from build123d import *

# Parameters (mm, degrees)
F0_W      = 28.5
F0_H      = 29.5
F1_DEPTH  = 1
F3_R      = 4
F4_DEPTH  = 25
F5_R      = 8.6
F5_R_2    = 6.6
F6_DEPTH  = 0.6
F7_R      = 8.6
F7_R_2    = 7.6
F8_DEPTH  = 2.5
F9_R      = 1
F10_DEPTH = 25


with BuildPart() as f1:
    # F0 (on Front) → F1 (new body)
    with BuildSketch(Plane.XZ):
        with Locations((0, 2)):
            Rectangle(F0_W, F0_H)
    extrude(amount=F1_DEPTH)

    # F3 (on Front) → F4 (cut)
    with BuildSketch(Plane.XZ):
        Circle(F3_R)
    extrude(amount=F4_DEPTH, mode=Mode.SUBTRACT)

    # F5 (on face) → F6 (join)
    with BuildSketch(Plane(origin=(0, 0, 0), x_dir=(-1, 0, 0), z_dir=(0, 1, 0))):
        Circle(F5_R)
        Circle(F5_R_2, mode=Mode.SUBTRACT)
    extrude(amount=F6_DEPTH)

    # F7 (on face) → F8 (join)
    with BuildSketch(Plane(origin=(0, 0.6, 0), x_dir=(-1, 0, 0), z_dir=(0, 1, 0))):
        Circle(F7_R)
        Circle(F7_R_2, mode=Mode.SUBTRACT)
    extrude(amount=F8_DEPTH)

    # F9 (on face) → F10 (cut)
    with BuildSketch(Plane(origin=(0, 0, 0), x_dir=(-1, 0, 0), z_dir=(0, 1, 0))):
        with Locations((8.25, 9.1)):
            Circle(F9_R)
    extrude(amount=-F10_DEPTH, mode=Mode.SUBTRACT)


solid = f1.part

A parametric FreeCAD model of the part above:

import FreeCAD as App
import Part
import Sketcher

V = App.Vector
Q = App.Units.Quantity

doc = App.newDocument("Part")
body = doc.addObject("PartDesign::Body", "Body")

# Sketch on XZ plane
sketch1 = body.newObject("Sketcher::SketchObject", "Sketch")
sketch1.AttachmentSupport = (doc.getObject("XZ_Plane"), [""])
sketch1.MapMode = "FlatFace"
sketch1.addGeometry([
    Part.LineSegment(V(-14, 17, 0), V(-14, -13, 0)),
    Part.LineSegment(V(-14, -13, 0), V(14, -13, 0)),
    Part.LineSegment(V(14, -13, 0), V(14, 17, 0)),
    Part.LineSegment(V(14, 17, 0), V(-14, 17, 0)),
], False)
sketch1.addConstraint([
    Sketcher.Constraint("Coincident", 0, 2, 1, 1),
    Sketcher.Constraint("Coincident", 1, 2, 2, 1),
    Sketcher.Constraint("Coincident", 2, 2, 3, 1),
    Sketcher.Constraint("Coincident", 3, 2, 0, 1),
    Sketcher.Constraint("Vertical", 0),
    Sketcher.Constraint("Horizontal", 1),
    Sketcher.Constraint("Vertical", 2),
    Sketcher.Constraint("Horizontal", 3),
    Sketcher.Constraint("DistanceX", 1, 1, 1, 2, Q("28.5 mm")),
    Sketcher.Constraint("DistanceY", 0, 2, 0, 1, Q("29.5 mm")),
    Sketcher.Constraint("DistanceX", 0, 2, -1, 1, Q("14.25 mm")),
    Sketcher.Constraint("DistanceY", 0, 2, -1, 1, Q("12.75 mm")),
])
pad1 = body.newObject("PartDesign::Pad", "Pad")
pad1.Profile = sketch1
pad1.Length = 1

# Sketch on XZ plane
sketch2 = body.newObject("Sketcher::SketchObject", "Sketch001")
sketch2.AttachmentSupport = (doc.getObject("XZ_Plane"), [""])
sketch2.MapMode = "FlatFace"
sketch2.addGeometry(Part.Circle(V(0, 0, 0), V(0, 0, 1), 4), False)
sketch2.addConstraint([
    Sketcher.Constraint("Coincident", 0, 3, -1, 1),
    Sketcher.Constraint("Diameter", 0, Q("8 mm")),
])
pocket1 = body.newObject("PartDesign::Pocket", "Pocket")
pocket1.Profile = sketch2
pocket1.Length = 25
pocket1.Reversed = True

# Sketch on XZ plane
sketch3 = body.newObject("Sketcher::SketchObject", "Sketch002")
sketch3.AttachmentSupport = (doc.getObject("XZ_Plane"), [""])
sketch3.MapMode = "FlatFace"
sketch3.addGeometry([
    Part.Circle(V(0, 0, 0), V(0, 0, 1), 9),
    Part.Circle(V(0, 0, 0), V(0, 0, 1), 7),
], False)
sketch3.addConstraint([
    Sketcher.Constraint("Coincident", 0, 3, -1, 1),
    Sketcher.Constraint("Coincident", 1, 3, -1, 1),
    Sketcher.Constraint("Diameter", 0, Q("17.2 mm")),
    Sketcher.Constraint("Diameter", 1, Q("13.2 mm")),
])
pad2 = body.newObject("PartDesign::Pad", "Pad001")
pad2.Profile = sketch3
pad2.Length = 0.6
pad2.Reversed = True

# Sketch on XZ plane
sketch4 = body.newObject("Sketcher::SketchObject", "Sketch003")
sketch4.AttachmentSupport = (doc.getObject("XZ_Plane"), [""])
sketch4.MapMode = "FlatFace"
sketch4.AttachmentOffset = App.Placement(V(0, 0, -0.6), App.Rotation())
sketch4.addGeometry([
    Part.Circle(V(0, 0, 0), V(0, 0, 1), 9),
    Part.Circle(V(0, 0, 0), V(0, 0, 1), 8),
], False)
sketch4.addConstraint([
    Sketcher.Constraint("Coincident", 0, 3, -1, 1),
    Sketcher.Constraint("Coincident", 1, 3, -1, 1),
    Sketcher.Constraint("Diameter", 0, Q("17.2 mm")),
    Sketcher.Constraint("Diameter", 1, Q("15.2 mm")),
])
pad3 = body.newObject("PartDesign::Pad", "Pad002")
pad3.Profile = sketch4
pad3.Length = 2.5
pad3.Reversed = True

# Sketch on XZ plane
sketch5 = body.newObject("Sketcher::SketchObject", "Sketch004")
sketch5.AttachmentSupport = (doc.getObject("XZ_Plane"), [""])
sketch5.MapMode = "FlatFace"
sketch5.addGeometry(Part.Circle(V(-8.2, 9.1, 0), V(0, 0, 1), 1), False)
sketch5.addConstraint([
    Sketcher.Constraint("Diameter", 0, Q("2 mm")),
    Sketcher.Constraint("DistanceY", -1, 1, 0, 3, Q("9.1 mm")),
    Sketcher.Constraint("DistanceX", 0, 3, -1, 1, Q("8.25 mm")),
])
pocket2 = body.newObject("PartDesign::Pocket", "Pocket001")
pocket2.Profile = sketch5
pocket2.Length = 25
pocket2.Reversed = True

doc.recompute()
